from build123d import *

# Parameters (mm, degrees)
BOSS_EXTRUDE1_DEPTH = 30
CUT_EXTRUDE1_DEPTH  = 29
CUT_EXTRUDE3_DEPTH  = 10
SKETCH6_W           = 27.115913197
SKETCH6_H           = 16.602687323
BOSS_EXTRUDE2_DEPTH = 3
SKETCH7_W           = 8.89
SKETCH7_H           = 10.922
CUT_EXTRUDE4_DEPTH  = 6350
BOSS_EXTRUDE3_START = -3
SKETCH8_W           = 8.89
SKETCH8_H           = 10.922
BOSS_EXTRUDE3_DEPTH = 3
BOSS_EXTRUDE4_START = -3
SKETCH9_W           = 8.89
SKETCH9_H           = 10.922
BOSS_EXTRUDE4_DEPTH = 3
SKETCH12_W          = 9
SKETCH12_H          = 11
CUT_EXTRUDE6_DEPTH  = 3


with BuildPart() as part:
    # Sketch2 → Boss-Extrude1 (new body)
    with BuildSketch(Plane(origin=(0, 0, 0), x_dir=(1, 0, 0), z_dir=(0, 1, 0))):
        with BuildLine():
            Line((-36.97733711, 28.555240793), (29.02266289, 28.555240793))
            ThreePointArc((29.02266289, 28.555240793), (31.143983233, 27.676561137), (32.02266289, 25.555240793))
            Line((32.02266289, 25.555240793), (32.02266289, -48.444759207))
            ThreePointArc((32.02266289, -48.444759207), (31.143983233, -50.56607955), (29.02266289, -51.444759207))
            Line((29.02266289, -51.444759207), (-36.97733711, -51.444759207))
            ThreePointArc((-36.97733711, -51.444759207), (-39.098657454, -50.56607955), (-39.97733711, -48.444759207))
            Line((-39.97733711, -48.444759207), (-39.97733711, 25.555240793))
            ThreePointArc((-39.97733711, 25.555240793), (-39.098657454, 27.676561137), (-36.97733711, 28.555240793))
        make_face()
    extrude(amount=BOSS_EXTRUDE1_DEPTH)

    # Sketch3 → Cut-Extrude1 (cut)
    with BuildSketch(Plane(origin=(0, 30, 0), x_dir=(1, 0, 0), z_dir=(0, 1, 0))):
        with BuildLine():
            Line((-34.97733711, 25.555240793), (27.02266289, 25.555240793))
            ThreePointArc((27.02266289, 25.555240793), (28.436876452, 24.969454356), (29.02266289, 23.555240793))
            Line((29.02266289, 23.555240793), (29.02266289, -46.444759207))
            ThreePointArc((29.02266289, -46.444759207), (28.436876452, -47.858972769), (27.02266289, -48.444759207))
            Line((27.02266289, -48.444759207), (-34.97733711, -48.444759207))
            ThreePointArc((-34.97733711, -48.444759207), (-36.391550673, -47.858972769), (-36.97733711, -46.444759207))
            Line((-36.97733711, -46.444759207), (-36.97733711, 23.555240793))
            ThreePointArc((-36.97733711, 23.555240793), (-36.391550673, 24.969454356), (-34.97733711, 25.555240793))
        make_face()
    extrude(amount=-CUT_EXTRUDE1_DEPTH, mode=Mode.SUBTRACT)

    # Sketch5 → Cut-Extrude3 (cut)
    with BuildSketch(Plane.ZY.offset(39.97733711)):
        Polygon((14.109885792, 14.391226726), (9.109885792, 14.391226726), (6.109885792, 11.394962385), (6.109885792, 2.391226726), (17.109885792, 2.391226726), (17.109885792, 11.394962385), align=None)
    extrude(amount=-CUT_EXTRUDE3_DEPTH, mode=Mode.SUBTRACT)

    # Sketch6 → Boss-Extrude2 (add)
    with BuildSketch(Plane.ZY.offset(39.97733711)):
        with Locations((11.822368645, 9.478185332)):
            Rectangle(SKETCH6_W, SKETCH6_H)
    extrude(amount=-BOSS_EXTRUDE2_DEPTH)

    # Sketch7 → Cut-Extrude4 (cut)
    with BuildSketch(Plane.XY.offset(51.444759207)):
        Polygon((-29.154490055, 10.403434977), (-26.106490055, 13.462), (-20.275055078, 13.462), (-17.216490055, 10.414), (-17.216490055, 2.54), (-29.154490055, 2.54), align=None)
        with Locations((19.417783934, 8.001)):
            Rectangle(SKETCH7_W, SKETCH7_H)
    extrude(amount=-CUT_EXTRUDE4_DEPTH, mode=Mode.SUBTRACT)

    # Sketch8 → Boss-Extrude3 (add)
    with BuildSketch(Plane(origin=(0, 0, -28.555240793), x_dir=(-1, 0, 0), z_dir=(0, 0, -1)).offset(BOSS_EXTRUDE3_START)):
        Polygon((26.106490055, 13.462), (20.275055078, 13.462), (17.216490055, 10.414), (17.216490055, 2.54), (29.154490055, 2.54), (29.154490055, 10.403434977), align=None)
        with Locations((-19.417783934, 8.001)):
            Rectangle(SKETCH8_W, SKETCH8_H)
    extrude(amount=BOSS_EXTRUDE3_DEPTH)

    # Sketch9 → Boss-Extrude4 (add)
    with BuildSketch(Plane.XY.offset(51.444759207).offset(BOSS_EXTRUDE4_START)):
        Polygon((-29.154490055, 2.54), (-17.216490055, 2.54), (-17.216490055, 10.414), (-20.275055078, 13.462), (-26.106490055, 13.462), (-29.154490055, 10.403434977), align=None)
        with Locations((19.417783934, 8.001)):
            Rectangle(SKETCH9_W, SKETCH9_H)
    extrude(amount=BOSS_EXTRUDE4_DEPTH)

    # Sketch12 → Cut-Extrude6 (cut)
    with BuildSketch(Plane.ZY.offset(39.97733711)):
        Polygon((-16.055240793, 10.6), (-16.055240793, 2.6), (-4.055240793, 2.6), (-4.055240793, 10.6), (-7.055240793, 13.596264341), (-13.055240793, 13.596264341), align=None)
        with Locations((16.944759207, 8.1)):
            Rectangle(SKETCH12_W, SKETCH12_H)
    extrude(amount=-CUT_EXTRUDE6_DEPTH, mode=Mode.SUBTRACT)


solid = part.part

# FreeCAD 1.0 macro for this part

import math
import FreeCAD as App
import Part
import Sketcher
from FreeCAD import Vector


def add_polygon(sketch, points):
    """Adds a closed chain of lines whose ends are joined by coincident constraints."""
    first, n = sketch.GeometryCount, len(points)
    for a, b in zip(points, points[1:] + points[:1]):
        sketch.addGeometry(Part.LineSegment(App.Vector(*a, 0), App.Vector(*b, 0)), False)
    for i in range(n):
        sketch.addConstraint(Sketcher.Constraint("Coincident", first + i, 2, first + (i + 1) % n, 1))

doc = App.newDocument("Part")
params = doc.addObject("Spreadsheet::Sheet", "Params")
for row, (alias, value) in enumerate([
    ("sketch1_radius", "3 mm"),
    ("sketch1_width", "66 mm"),
    ("sketch1_height", "74 mm"),
    ("pad1_length", "30 mm"),
    ("sketch2_radius", "2 mm"),
    ("sketch2_width", "62 mm"),
    ("sketch2_height", "70 mm"),
    ("pocket1_length", "29 mm"),
    ("sketch3_height", "5 mm"),
    ("sketch3_height2", "11 mm"),
    ("sketch3_length", "4.24 mm"),
    ("pocket2_length", "10 mm"),
    ("pad2_length", "3 mm"),
    ("sketch5_width", "8.89 mm"),
    ("pocket3_length", "6350 mm"),
    ("sketch6_width", "8.89 mm"),
    ("pad3_length", "3 mm"),
    ("sketch7_width", "8.89 mm"),
    ("pad4_length", "3 mm"),
    ("sketch8_width", "8 mm"),
    ("sketch8_width2", "11 mm"),
    ("sketch8_height", "12 mm"),
    ("sketch8_height2", "6 mm"),
    ("sketch8_height3", "9 mm"),
    ("pocket4_length", "3 mm"),
], start=1):
    params.set(f"A{row}", alias)
    params.set(f"B{row}", "=" + value)
    params.setAlias(f"B{row}", alias)

body = doc.addObject("PartDesign::Body", "Body")

# Sketch on XZ plane
sketch1 = body.newObject("Sketcher::SketchObject", "Sketch")
sketch1.AttachmentSupport = (doc.getObject("XZ_Plane"), [""])
sketch1.MapMode = "FlatFace"
sketch1.addGeometry(Part.LineSegment(Vector(29.022663, -28.555241, 0), Vector(-36.977337, -28.555241, 0)), False)
sketch1.addGeometry(Part.ArcOfCircle(Part.Circle(Vector(-36.977337, -25.555241, 0), Vector(0, 0, 1), 3), math.radians(180), math.radians(270)), False)
sketch1.addGeometry(Part.LineSegment(Vector(-39.977337, -25.555241, 0), Vector(-39.977337, 48.444759, 0)), False)
sketch1.addGeometry(Part.ArcOfCircle(Part.Circle(Vector(-36.977337, 48.444759, 0), Vector(0, 0, 1), 3), math.radians(90), math.radians(180)), False)
sketch1.addGeometry(Part.LineSegment(Vector(-36.977337, 51.444759, 0), Vector(29.022663, 51.444759, 0)), False)
sketch1.addGeometry(Part.ArcOfCircle(Part.Circle(Vector(29.022663, 48.444759, 0), Vector(0, 0, 1), 3), math.radians(0), math.radians(90)), False)
sketch1.addGeometry(Part.LineSegment(Vector(32.022663, 48.444759, 0), Vector(32.022663, -25.555241, 0)), False)
sketch1.addGeometry(Part.ArcOfCircle(Part.Circle(Vector(29.022663, -25.555241, 0), Vector(0, 0, 1), 3), math.radians(-90), math.radians(0)), False)
sketch1.addConstraint(Sketcher.Constraint("Tangent", 0, 2, 1, 2))
sketch1.addConstraint(Sketcher.Constraint("Tangent", 1, 1, 2, 1))
sketch1.addConstraint(Sketcher.Constraint("Tangent", 2, 2, 3, 2))
sketch1.addConstraint(Sketcher.Constraint("Tangent", 3, 1, 4, 1))
sketch1.addConstraint(Sketcher.Constraint("Tangent", 4, 2, 5, 2))
sketch1.addConstraint(Sketcher.Constraint("Tangent", 5, 1, 6, 1))
sketch1.addConstraint(Sketcher.Constraint("Tangent", 6, 2, 7, 2))
sketch1.addConstraint(Sketcher.Constraint("Tangent", 7, 1, 0, 1))
sketch1.addConstraint(Sketcher.Constraint("Horizontal", 0))
sketch1.addConstraint(Sketcher.Constraint("Vertical", 2))
sketch1.addConstraint(Sketcher.Constraint("Horizontal", 4))
sketch1.addConstraint(Sketcher.Constraint("Vertical", 6))
sketch1.addConstraint(Sketcher.Constraint("Equal", 1, 3))
sketch1.addConstraint(Sketcher.Constraint("Equal", 3, 5))
sketch1.addConstraint(Sketcher.Constraint("Equal", 5, 7))
sketch1.addConstraint(Sketcher.Constraint("Radius", 1, 3.0))
sketch1.addConstraint(Sketcher.Constraint("DistanceX", 0, 2, 0, 1, 66.0))
sketch1.addConstraint(Sketcher.Constraint("DistanceY", 2, 1, 2, 2, 74.0))
sketch1.addConstraint(Sketcher.Constraint("DistanceY", 1, 3, -1, 1, 25.555241))
sketch1.addConstraint(Sketcher.Constraint("DistanceX", 1, 3, -1, 1, 36.977337))
sketch1.setExpression("Constraints[15]", "Params.sketch1_radius")
sketch1.setExpression("Constraints[16]", "Params.sketch1_width")
sketch1.setExpression("Constraints[17]", "Params.sketch1_height")
pad1 = body.newObject("PartDesign::Pad", "Pad")
pad1.Profile = sketch1
pad1.setExpression("Length", "Params.pad1_length")
pad1.Reversed = True

# Sketch on XZ plane
sketch2 = body.newObject("Sketcher::SketchObject", "Sketch001")
sketch2.AttachmentSupport = (doc.getObject("XZ_Plane"), [""])
sketch2.MapMode = "FlatFace"
sketch2.AttachmentOffset = App.Placement(Vector(0, 0, -30), App.Rotation())
sketch2.addGeometry(Part.LineSegment(Vector(27.022663, -25.555241, 0), Vector(-34.977337, -25.555241, 0)), False)
sketch2.addGeometry(Part.ArcOfCircle(Part.Circle(Vector(-34.977337, -23.555241, 0), Vector(0, 0, 1), 2), math.radians(180), math.radians(270)), False)
sketch2.addGeometry(Part.LineSegment(Vector(-36.977337, -23.555241, 0), Vector(-36.977337, 46.444759, 0)), False)
sketch2.addGeometry(Part.ArcOfCircle(Part.Circle(Vector(-34.977337, 46.444759, 0), Vector(0, 0, 1), 2), math.radians(90), math.radians(180)), False)
sketch2.addGeometry(Part.LineSegment(Vector(-34.977337, 48.444759, 0), Vector(27.022663, 48.444759, 0)), False)
sketch2.addGeometry(Part.ArcOfCircle(Part.Circle(Vector(27.022663, 46.444759, 0), Vector(0, 0, 1), 2), math.radians(0), math.radians(90)), False)
sketch2.addGeometry(Part.LineSegment(Vector(29.022663, 46.444759, 0), Vector(29.022663, -23.555241, 0)), False)
sketch2.addGeometry(Part.ArcOfCircle(Part.Circle(Vector(27.022663, -23.555241, 0), Vector(0, 0, 1), 2), math.radians(-90), math.radians(0)), False)
sketch2.addConstraint(Sketcher.Constraint("Tangent", 0, 2, 1, 2))
sketch2.addConstraint(Sketcher.Constraint("Tangent", 1, 1, 2, 1))
sketch2.addConstraint(Sketcher.Constraint("Tangent", 2, 2, 3, 2))
sketch2.addConstraint(Sketcher.Constraint("Tangent", 3, 1, 4, 1))
sketch2.addConstraint(Sketcher.Constraint("Tangent", 4, 2, 5, 2))
sketch2.addConstraint(Sketcher.Constraint("Tangent", 5, 1, 6, 1))
sketch2.addConstraint(Sketcher.Constraint("Tangent", 6, 2, 7, 2))
sketch2.addConstraint(Sketcher.Constraint("Tangent", 7, 1, 0, 1))
sketch2.addConstraint(Sketcher.Constraint("Horizontal", 0))
sketch2.addConstraint(Sketcher.Constraint("Vertical", 2))
sketch2.addConstraint(Sketcher.Constraint("Horizontal", 4))
sketch2.addConstraint(Sketcher.Constraint("Vertical", 6))
sketch2.addConstraint(Sketcher.Constraint("Equal", 1, 3))
sketch2.addConstraint(Sketcher.Constraint("Equal", 3, 5))
sketch2.addConstraint(Sketcher.Constraint("Equal", 5, 7))
sketch2.addConstraint(Sketcher.Constraint("Radius", 1, 2.0))
sketch2.addConstraint(Sketcher.Constraint("DistanceX", 0, 2, 0, 1, 62.0))
sketch2.addConstraint(Sketcher.Constraint("DistanceY", 2, 1, 2, 2, 70.0))
sketch2.addConstraint(Sketcher.Constraint("DistanceY", 1, 3, -1, 1, 23.555241))
sketch2.addConstraint(Sketcher.Constraint("DistanceX", 1, 3, -1, 1, 34.977337))
sketch2.setExpression("Constraints[15]", "Params.sketch2_radius")
sketch2.setExpression("Constraints[16]", "Params.sketch2_width")
sketch2.setExpression("Constraints[17]", "Params.sketch2_height")
pocket1 = body.newObject("PartDesign::Pocket", "Pocket")
pocket1.Profile = sketch2
pocket1.setExpression("Length", "Params.pocket1_length")
pocket1.Reversed = True

# Sketch on YZ plane
sketch3 = body.newObject("Sketcher::SketchObject", "Sketch002")
sketch3.AttachmentSupport = (doc.getObject("YZ_Plane"), [""])
sketch3.MapMode = "FlatFace"
sketch3.AttachmentOffset = App.Placement(Vector(0, 0, -39.977337), App.Rotation())
add_polygon(sketch3, [(14.391227, 14.109886), (14.391227, 9.109886), (11.394962, 6.109886), (2.391227, 6.109886), (2.391227, 17.109886), (11.394962, 17.109886)])  # lines 0-5
sketch3.addConstraint(Sketcher.Constraint("Vertical", 0))
sketch3.addConstraint(Sketcher.Constraint("Horizontal", 2))
sketch3.addConstraint(Sketcher.Constraint("Vertical", 3))
sketch3.addConstraint(Sketcher.Constraint("Horizontal", 4))
sketch3.addConstraint(Sketcher.Constraint("Vertical", 1, 2, 4, 2))
sketch3.addConstraint(Sketcher.Constraint("Equal", 1, 5))
sketch3.addConstraint(Sketcher.Constraint("DistanceY", 0, 2, 0, 1, 5.0))
sketch3.addConstraint(Sketcher.Constraint("DistanceY", 3, 1, 3, 2, 11.0))
sketch3.addConstraint(Sketcher.Constraint("DistanceX", 2, 2, 0, 2, 12.0))
sketch3.addConstraint(Sketcher.Constraint("Distance", 1, 4.24))
sketch3.addConstraint(Sketcher.Constraint("DistanceX", -1, 1, 0, 2, 14.391227))
sketch3.addConstraint(Sketcher.Constraint("DistanceY", -1, 1, 0, 2, 9.109886))
sketch3.setExpression("Constraints[12]", "Params.sketch3_height")
sketch3.setExpression("Constraints[13]", "Params.sketch3_height2")
sketch3.setExpression("Constraints[15]", "Params.sketch3_length")
pocket2 = body.newObject("PartDesign::Pocket", "Pocket001")
pocket2.Profile = sketch3
pocket2.setExpression("Length", "Params.pocket2_length")
pocket2.Reversed = True

# Sketch on YZ plane
sketch4 = body.newObject("Sketcher::SketchObject", "Sketch003")
sketch4.AttachmentSupport = (doc.getObject("YZ_Plane"), [""])
sketch4.MapMode = "FlatFace"
sketch4.AttachmentOffset = App.Placement(Vector(0, 0, -39.977337), App.Rotation())
add_polygon(sketch4, [(17.779529, -1.735588), (1.176842, -1.735588), (1.176842, 25.380325), (17.779529, 25.380325)])  # lines 0-3
sketch4.addConstraint(Sketcher.Constraint("Horizontal", 0))
sketch4.addConstraint(Sketcher.Constraint("Vertical", 1))
sketch4.addConstraint(Sketcher.Constraint("Horizontal", 2))
sketch4.addConstraint(Sketcher.Constraint("Vertical", 3))
sketch4.addConstraint(Sketcher.Constraint("DistanceX", 0, 2, 0, 1, 16.602687))
sketch4.addConstraint(Sketcher.Constraint("DistanceY", 1, 1, 1, 2, 27.115913))
sketch4.addConstraint(Sketcher.Constraint("DistanceX", -1, 1, 0, 2, 1.176842))
sketch4.addConstraint(Sketcher.Constraint("DistanceY", 0, 2, -1, 1, 1.735588))
pad2 = body.newObject("PartDesign::Pad", "Pad001")
pad2.Profile = sketch4
pad2.setExpression("Length", "Params.pad2_length")

# Sketch on XY plane
sketch5 = body.newObject("Sketcher::SketchObject", "Sketch004")
sketch5.AttachmentSupport = (doc.getObject("XY_Plane"), [""])
sketch5.MapMode = "FlatFace"
sketch5.AttachmentOffset = App.Placement(Vector(0, 0, 51.444759), App.Rotation())
add_polygon(sketch5, [(-26.10649, 13.462), (-29.15449, 10.403435), (-29.15449, 2.54), (-17.21649, 2.54), (-17.21649, 10.414), (-20.275055, 13.462)])  # lines 0-5
add_polygon(sketch5, [(14.972784, 13.462), (14.972784, 2.54), (23.862784, 2.54), (23.862784, 13.462)])  # lines 6-9
sketch5.addConstraint(Sketcher.Constraint("Vertical", 1))
sketch5.addConstraint(Sketcher.Constraint("Horizontal", 2))
sketch5.addConstraint(Sketcher.Constraint("Vertical", 3))
sketch5.addConstraint(Sketcher.Constraint("Horizontal", 5))
sketch5.addConstraint(Sketcher.Constraint("Vertical", 6))
sketch5.addConstraint(Sketcher.Constraint("Horizontal", 7))
sketch5.addConstraint(Sketcher.Constraint("Vertical", 8))
sketch5.addConstraint(Sketcher.Constraint("Horizontal", 9))
sketch5.addConstraint(Sketcher.Constraint("Perpendicular", 0, 4))
sketch5.addConstraint(Sketcher.Constraint("Horizontal", 2, 2, 6, 2))
sketch5.addConstraint(Sketcher.Constraint("Horizontal", 5, 2, 8, 2))
sketch5.addConstraint(Sketcher.Constraint("Equal", 0, 4))
sketch5.addConstraint(Sketcher.Constraint("DistanceX", 7, 1, 7, 2, 8.89))
sketch5.addConstraint(Sketcher.Constraint("DistanceX", 2, 1, 2, 2, 11.938))
sketch5.addConstraint(Sketcher.Constraint("DistanceY", 3, 1, 3, 2, 7.874))
sketch5.addConstraint(Sketcher.Constraint("DistanceY", 6, 2, 6, 1, 10.922))
sketch5.addConstraint(Sketcher.Constraint("DistanceY", -1, 1, 1, 2, 2.54))
sketch5.addConstraint(Sketcher.Constraint("Distance", 0, 4.318))
sketch5.addConstraint(Sketcher.Constraint("DistanceX", 0, 2, -1, 1, 29.15449))
sketch5.addConstraint(Sketcher.Constraint("DistanceX", 4, 2, 6, 2, 35.247839))
sketch5.setExpression("Constraints[22]", "Params.sketch5_width")
pocket3 = body.newObject("PartDesign::Pocket", "Pocket002")
pocket3.Profile = sketch5
pocket3.setExpression("Length", "Params.pocket3_length")

# Sketch on XY plane
sketch6 = body.newObject("Sketcher::SketchObject", "Sketch005")
sketch6.AttachmentSupport = (doc.getObject("XY_Plane"), [""])
sketch6.MapMode = "FlatFace"
sketch6.AttachmentOffset = App.Placement(Vector(0, 0, -25.555241), App.Rotation())
add_polygon(sketch6, [(-26.10649, 13.462), (-20.275055, 13.462), (-17.21649, 10.414), (-17.21649, 2.54), (-29.15449, 2.54), (-29.15449, 10.403435)])  # lines 0-5
add_polygon(sketch6, [(23.862784, 13.462), (23.862784, 2.54), (14.972784, 2.54), (14.972784, 13.462)])  # lines 6-9
sketch6.addConstraint(Sketcher.Constraint("Horizontal", 0))
sketch6.addConstraint(Sketcher.Constraint("Vertical", 2))
sketch6.addConstraint(Sketcher.Constraint("Horizontal", 3))
sketch6.addConstraint(Sketcher.Constraint("Vertical", 4))
sketch6.addConstraint(Sketcher.Constraint("Vertical", 6))
sketch6.addConstraint(Sketcher.Constraint("Horizontal", 7))
sketch6.addConstraint(Sketcher.Constraint("Vertical", 8))
sketch6.addConstraint(Sketcher.Constraint("Horizontal", 9))
sketch6.addConstraint(Sketcher.Constraint("Perpendicular", 1, 5))
sketch6.addConstraint(Sketcher.Constraint("Horizontal", 3, 2, 6, 2))
sketch6.addConstraint(Sketcher.Constraint("Horizontal", 5, 2, 8, 2))
sketch6.addConstraint(Sketcher.Constraint("Equal", 1, 5))
sketch6.addConstraint(Sketcher.Constraint("DistanceX", 7, 2, 7, 1, 8.89))
sketch6.addConstraint(Sketcher.Constraint("DistanceX", 3, 2, 3, 1, 11.938))
sketch6.addConstraint(Sketcher.Constraint("DistanceY", 2, 2, 2, 1, 7.874))
sketch6.addConstraint(Sketcher.Constraint("DistanceY", 6, 2, 6, 1, 10.922))
sketch6.addConstraint(Sketcher.Constraint("DistanceY", -1, 1, 2, 2, 2.54))
sketch6.addConstraint(Sketcher.Constraint("Distance", 1, 4.318))
sketch6.addConstraint(Sketcher.Constraint("DistanceX", 1, 2, -1, 1, 17.21649))
sketch6.addConstraint(Sketcher.Constraint("DistanceX", 0, 2, 6, 2, 44.137839))
sketch6.setExpression("Constraints[22]", "Params.sketch6_width")
pad3 = body.newObject("PartDesign::Pad", "Pad002")
pad3.Profile = sketch6
pad3.setExpression("Length", "Params.pad3_length")
pad3.Reversed = True

# Sketch on XY plane
sketch7 = body.newObject("Sketcher::SketchObject", "Sketch006")
sketch7.AttachmentSupport = (doc.getObject("XY_Plane"), [""])
sketch7.MapMode = "FlatFace"
sketch7.AttachmentOffset = App.Placement(Vector(0, 0, 48.444759), App.Rotation())
add_polygon(sketch7, [(-29.15449, 2.54), (-17.21649, 2.54), (-17.21649, 10.414), (-20.275055, 13.462), (-26.10649, 13.462), (-29.15449, 10.403435)])  # lines 0-5
add_polygon(sketch7, [(14.972784, 13.462), (14.972784, 2.54), (23.862784, 2.54), (23.862784, 13.462)])  # lines 6-9
sketch7.addConstraint(Sketcher.Constraint("Horizontal", 0))
sketch7.addConstraint(Sketcher.Constraint("Vertical", 1))
sketch7.addConstraint(Sketcher.Constraint("Horizontal", 3))
sketch7.addConstraint(Sketcher.Constraint("Vertical", 5))
sketch7.addConstraint(Sketcher.Constraint("Vertical", 6))
sketch7.addConstraint(Sketcher.Constraint("Horizontal", 7))
sketch7.addConstraint(Sketcher.Constraint("Vertical", 8))
sketch7.addConstraint(Sketcher.Constraint("Horizontal", 9))
sketch7.addConstraint(Sketcher.Constraint("Perpendicular", 2, 4))
sketch7.addConstraint(Sketcher.Constraint("Horizontal", 5, 2, 6, 2))
sketch7.addConstraint(Sketcher.Constraint("Horizontal", 3, 2, 8, 2))
sketch7.addConstraint(Sketcher.Constraint("Equal", 2, 4))
sketch7.addConstraint(Sketcher.Constraint("DistanceX", 7, 1, 7, 2, 8.89))
sketch7.addConstraint(Sketcher.Constraint("DistanceX", 0, 1, 0, 2, 11.938))
sketch7.addConstraint(Sketcher.Constraint("DistanceY", 1, 1, 1, 2, 7.874))
sketch7.addConstraint(Sketcher.Constraint("DistanceY", 6, 2, 6, 1, 10.922))
sketch7.addConstraint(Sketcher.Constraint("DistanceY", -1, 1, 0, 2, 2.54))
sketch7.addConstraint(Sketcher.Constraint("Distance", 2, 4.318))
sketch7.addConstraint(Sketcher.Constraint("DistanceX", 0, 2, -1, 1, 17.21649))
sketch7.addConstraint(Sketcher.Constraint("DistanceX", 2, 2, 6, 2, 35.247839))
sketch7.setExpression("Constraints[22]", "Params.sketch7_width")
pad4 = body.newObject("PartDesign::Pad", "Pad003")
pad4.Profile = sketch7
pad4.setExpression("Length", "Params.pad4_length")

# Sketch on YZ plane
sketch8 = body.newObject("Sketcher::SketchObject", "Sketch007")
sketch8.AttachmentSupport = (doc.getObject("YZ_Plane"), [""])
sketch8.MapMode = "FlatFace"
sketch8.AttachmentOffset = App.Placement(Vector(0, 0, -39.977337), App.Rotation())
add_polygon(sketch8, [(10.6, -16.055241), (2.6, -16.055241), (2.6, -4.055241), (10.6, -4.055241), (13.596264, -7.055241), (13.596264, -13.055241)])  # lines 0-5
add_polygon(sketch8, [(13.6, 12.444759), (2.6, 12.444759), (2.6, 21.444759), (13.6, 21.444759)])  # lines 6-9
sketch8.addConstraint(Sketcher.Constraint("Horizontal", 0))
sketch8.addConstraint(Sketcher.Constraint("Vertical", 1))
sketch8.addConstraint(Sketcher.Constraint("Horizontal", 2))
sketch8.addConstraint(Sketcher.Constraint("Vertical", 4))
sketch8.addConstraint(Sketcher.Constraint("Horizontal", 6))
sketch8.addConstraint(Sketcher.Constraint("Vertical", 7))
sketch8.addConstraint(Sketcher.Constraint("Horizontal", 8))
sketch8.addConstraint(Sketcher.Constraint("Vertical", 9))
sketch8.addConstraint(Sketcher.Constraint("Vertical", 2, 2, 5, 2))
sketch8.addConstraint(Sketcher.Constraint("Vertical", 1, 2, 6, 2))
sketch8.addConstraint(Sketcher.Constraint("Equal", 3, 5))
sketch8.addConstraint(Sketcher.Constraint("DistanceX", 0, 2, 0, 1, 8.0))
sketch8.addConstraint(Sketcher.Constraint("DistanceX", 6, 2, 6, 1, 11.0))
sketch8.addConstraint(Sketcher.Constraint("DistanceY", 1, 1, 1, 2, 12.0))
sketch8.addConstraint(Sketcher.Constraint("DistanceY", 4, 2, 4, 1, 6.0))
sketch8.addConstraint(Sketcher.Constraint("DistanceY", 7, 1, 7, 2, 9.0))
sketch8.addConstraint(Sketcher.Constraint("DistanceX", -1, 1, 0, 2, 2.6))
sketch8.addConstraint(Sketcher.Constraint("DistanceY", 1, 2, 6, 2, 16.5))
sketch8.addConstraint(Sketcher.Constraint("Distance", 3, 4.24))
sketch8.addConstraint(Sketcher.Constraint("DistanceY", 0, 2, -1, 1, 16.055241))
sketch8.setExpression("Constraints[21]", "Params.sketch8_width")
sketch8.setExpression("Constraints[22]", "Params.sketch8_width2")
sketch8.setExpression("Constraints[23]", "Params.sketch8_height")
sketch8.setExpression("Constraints[24]", "Params.sketch8_height2")
sketch8.setExpression("Constraints[25]", "Params.sketch8_height3")
pocket4 = body.newObject("PartDesign::Pocket", "Pocket003")
pocket4.Profile = sketch8
pocket4.setExpression("Length", "Params.pocket4_length")
pocket4.Reversed = True

doc.recompute()
